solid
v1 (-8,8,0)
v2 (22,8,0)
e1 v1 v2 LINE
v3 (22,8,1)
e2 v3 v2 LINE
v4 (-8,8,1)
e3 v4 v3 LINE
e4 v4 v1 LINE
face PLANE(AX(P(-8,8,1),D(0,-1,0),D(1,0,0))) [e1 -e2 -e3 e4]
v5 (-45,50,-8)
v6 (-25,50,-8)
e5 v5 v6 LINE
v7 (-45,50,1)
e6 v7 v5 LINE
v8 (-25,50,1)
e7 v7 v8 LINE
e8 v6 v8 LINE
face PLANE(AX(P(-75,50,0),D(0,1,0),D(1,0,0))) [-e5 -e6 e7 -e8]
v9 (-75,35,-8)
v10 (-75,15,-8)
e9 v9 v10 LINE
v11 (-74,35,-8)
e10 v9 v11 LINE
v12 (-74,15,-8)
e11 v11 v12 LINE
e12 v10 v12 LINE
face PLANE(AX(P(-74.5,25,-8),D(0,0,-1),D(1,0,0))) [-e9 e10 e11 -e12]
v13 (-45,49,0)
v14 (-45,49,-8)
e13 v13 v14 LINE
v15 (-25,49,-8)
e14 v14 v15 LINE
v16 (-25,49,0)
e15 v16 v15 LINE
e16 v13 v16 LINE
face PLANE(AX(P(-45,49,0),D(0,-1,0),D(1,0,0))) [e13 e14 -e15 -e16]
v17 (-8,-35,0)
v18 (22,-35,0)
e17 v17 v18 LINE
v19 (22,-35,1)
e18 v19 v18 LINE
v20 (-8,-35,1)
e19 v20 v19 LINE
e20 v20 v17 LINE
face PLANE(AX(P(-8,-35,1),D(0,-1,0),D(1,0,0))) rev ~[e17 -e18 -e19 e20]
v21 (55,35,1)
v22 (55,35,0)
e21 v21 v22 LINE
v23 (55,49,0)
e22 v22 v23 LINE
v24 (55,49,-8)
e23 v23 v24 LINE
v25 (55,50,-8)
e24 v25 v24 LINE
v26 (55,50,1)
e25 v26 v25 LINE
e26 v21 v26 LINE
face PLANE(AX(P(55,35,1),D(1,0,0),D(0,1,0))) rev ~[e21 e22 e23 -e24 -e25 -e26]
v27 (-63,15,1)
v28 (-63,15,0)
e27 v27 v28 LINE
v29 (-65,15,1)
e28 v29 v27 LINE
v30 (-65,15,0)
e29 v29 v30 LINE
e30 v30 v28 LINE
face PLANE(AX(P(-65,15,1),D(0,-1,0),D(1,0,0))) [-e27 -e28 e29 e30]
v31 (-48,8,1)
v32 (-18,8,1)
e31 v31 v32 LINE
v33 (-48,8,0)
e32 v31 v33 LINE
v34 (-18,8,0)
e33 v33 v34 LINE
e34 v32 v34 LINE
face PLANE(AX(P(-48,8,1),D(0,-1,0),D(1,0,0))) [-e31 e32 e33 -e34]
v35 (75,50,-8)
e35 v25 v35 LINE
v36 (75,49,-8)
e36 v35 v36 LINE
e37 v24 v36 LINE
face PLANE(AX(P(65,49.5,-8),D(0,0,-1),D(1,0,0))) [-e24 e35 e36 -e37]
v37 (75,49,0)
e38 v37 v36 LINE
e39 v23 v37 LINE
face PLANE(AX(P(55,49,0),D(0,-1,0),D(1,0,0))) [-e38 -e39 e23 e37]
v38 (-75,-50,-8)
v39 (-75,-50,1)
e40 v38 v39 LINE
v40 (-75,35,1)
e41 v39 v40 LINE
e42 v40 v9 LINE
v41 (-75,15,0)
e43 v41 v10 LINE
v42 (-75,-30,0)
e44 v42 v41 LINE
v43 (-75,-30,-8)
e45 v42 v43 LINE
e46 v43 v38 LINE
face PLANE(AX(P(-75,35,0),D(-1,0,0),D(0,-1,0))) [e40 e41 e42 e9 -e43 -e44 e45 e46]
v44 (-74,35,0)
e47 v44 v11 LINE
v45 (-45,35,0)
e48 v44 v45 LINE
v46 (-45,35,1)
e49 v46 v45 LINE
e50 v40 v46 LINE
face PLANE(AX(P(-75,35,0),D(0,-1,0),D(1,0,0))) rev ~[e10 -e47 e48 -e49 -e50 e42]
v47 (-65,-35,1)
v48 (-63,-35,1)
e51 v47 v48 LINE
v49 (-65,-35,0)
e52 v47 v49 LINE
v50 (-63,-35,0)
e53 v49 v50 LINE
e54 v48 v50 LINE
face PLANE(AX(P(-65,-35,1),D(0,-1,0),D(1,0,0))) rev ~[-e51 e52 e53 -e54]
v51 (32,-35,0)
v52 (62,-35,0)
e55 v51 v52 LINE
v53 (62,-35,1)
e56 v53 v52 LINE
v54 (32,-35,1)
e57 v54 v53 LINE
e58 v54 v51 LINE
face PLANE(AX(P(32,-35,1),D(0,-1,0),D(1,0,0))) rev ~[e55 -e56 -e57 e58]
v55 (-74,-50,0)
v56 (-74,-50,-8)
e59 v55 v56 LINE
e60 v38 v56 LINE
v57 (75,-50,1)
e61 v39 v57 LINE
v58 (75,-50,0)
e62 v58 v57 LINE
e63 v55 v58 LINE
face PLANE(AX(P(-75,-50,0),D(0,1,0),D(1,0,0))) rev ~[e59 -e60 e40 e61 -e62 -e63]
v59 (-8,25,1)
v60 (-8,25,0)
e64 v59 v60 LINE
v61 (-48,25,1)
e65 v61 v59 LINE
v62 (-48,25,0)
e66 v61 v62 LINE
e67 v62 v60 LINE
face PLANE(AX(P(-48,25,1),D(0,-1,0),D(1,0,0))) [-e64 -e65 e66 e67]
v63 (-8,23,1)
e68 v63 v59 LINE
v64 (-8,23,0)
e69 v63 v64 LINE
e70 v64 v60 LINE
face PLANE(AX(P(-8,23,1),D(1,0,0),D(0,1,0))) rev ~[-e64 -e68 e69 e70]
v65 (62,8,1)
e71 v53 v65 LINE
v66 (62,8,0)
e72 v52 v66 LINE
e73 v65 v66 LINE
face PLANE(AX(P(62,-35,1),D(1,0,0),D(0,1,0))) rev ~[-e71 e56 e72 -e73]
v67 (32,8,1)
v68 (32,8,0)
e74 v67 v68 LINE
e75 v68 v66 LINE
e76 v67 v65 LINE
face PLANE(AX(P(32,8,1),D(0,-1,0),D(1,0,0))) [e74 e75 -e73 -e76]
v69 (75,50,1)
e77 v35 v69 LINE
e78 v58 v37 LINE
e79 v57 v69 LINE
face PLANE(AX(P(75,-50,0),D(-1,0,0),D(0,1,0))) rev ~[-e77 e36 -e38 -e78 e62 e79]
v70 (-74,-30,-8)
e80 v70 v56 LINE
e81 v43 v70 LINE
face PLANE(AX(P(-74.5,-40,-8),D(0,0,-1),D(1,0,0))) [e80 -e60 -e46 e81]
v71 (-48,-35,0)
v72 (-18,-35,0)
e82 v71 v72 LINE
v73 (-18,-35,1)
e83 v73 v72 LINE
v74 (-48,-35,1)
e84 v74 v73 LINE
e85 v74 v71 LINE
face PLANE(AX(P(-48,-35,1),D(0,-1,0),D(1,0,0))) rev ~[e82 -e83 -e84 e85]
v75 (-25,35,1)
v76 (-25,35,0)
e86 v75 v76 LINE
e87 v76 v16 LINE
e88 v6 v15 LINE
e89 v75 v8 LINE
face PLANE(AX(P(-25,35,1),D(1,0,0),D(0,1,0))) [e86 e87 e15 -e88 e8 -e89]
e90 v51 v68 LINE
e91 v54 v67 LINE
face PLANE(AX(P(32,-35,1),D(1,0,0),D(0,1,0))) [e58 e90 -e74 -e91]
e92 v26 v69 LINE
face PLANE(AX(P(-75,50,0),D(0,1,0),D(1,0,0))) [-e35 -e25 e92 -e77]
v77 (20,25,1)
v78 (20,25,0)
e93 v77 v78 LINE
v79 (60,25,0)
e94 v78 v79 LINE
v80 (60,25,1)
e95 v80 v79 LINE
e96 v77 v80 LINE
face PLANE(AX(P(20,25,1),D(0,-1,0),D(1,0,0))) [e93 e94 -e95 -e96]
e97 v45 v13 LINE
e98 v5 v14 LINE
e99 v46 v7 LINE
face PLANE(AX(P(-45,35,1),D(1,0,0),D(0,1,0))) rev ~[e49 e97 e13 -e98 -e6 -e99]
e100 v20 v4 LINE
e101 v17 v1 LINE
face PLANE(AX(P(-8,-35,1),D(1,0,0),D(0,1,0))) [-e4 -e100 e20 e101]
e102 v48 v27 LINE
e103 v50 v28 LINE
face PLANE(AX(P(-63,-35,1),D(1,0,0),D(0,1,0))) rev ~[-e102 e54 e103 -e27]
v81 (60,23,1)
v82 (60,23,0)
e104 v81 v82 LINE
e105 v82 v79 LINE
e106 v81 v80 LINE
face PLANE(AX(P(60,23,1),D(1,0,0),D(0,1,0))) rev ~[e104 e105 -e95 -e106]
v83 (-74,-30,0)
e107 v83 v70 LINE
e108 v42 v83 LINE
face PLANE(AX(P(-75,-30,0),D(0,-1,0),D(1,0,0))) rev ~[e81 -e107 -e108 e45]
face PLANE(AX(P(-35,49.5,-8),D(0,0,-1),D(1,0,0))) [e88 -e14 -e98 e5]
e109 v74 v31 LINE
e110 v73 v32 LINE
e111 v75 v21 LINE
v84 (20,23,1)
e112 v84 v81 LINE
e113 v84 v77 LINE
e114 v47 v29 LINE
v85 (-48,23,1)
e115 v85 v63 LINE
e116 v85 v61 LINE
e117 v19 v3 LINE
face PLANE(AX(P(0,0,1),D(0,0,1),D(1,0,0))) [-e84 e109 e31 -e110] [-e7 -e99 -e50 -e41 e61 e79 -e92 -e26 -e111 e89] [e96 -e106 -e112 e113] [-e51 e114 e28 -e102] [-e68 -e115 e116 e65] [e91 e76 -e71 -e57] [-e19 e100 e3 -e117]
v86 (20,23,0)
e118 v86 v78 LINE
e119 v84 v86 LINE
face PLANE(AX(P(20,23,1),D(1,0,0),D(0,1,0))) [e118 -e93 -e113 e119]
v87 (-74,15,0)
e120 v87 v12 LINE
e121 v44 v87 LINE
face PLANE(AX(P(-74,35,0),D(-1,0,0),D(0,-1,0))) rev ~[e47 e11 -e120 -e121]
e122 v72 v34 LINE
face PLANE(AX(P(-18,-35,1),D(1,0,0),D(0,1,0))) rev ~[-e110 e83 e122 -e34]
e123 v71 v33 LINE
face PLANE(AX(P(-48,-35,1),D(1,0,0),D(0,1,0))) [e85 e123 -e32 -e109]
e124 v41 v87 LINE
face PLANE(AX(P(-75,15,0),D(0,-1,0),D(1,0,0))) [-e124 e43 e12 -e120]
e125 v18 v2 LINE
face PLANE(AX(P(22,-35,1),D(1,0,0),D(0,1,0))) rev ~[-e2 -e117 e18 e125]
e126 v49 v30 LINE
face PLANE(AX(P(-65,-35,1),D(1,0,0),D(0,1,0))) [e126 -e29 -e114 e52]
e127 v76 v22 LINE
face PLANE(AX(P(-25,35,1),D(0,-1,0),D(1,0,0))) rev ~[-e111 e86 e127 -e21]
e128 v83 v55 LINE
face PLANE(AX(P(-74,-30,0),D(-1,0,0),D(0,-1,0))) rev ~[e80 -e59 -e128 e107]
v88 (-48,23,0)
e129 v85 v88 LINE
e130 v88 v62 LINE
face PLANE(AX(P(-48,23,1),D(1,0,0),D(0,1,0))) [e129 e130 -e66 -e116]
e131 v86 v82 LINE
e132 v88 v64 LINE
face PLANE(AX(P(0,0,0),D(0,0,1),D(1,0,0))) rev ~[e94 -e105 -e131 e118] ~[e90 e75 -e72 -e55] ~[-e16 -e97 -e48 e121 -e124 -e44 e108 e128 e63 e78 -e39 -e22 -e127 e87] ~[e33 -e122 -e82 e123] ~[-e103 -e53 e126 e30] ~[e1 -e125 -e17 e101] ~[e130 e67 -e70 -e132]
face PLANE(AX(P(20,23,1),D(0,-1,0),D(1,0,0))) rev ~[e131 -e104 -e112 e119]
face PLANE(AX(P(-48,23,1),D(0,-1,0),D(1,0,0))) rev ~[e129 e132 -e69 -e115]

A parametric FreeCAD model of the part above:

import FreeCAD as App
import Part
import Sketcher

doc = App.newDocument("Part")
body = doc.addObject("PartDesign::Body", "Body")

# Sketch on XY plane
sketch1 = doc.addObject("Sketcher::SketchObject", "Sketch")
body.addObject(sketch1)
sketch1.AttachmentSupport = (doc.XY_Plane, [""])
sketch1.MapMode = "FlatFace"
sketch1.addGeometry([
    Part.LineSegment(App.Vector(-75, 50, 0), App.Vector(-75, -50, 0)),
    Part.LineSegment(App.Vector(-75, -50, 0), App.Vector(75, -50, 0)),
    Part.LineSegment(App.Vector(75, -50, 0), App.Vector(75, 50, 0)),
    Part.LineSegment(App.Vector(75, 50, 0), App.Vector(-75, 50, 0)),
], False)
sketch1.addConstraint([
    Sketcher.Constraint("Coincident", 0, 2, 1, 1),
    Sketcher.Constraint("Coincident", 1, 2, 2, 1),
    Sketcher.Constraint("Coincident", 2, 2, 3, 1),
    Sketcher.Constraint("Coincident", 3, 2, 0, 1),
    Sketcher.Constraint("Vertical", 0),
    Sketcher.Constraint("Horizontal", 1),
    Sketcher.Constraint("Vertical", 2),
    Sketcher.Constraint("Horizontal", 3),
    Sketcher.Constraint("Symmetric", 0, 2, 2, 2, -1, 1),
    Sketcher.Constraint("DistanceX", 1, 1, 1, 2, 150.0),
    Sketcher.Constraint("DistanceY", 0, 2, 0, 1, 100.0),
])
pad1 = doc.addObject("PartDesign::Pad", "Pad")
body.addObject(pad1)
pad1.Profile = sketch1
pad1.Length = 1

# Sketch on XY plane
sketch2 = doc.addObject("Sketcher::SketchObject", "Sketch001")
body.addObject(sketch2)
sketch2.AttachmentSupport = (doc.XY_Plane, [""])
sketch2.MapMode = "FlatFace"
sketch2.AttachmentOffset = App.Placement(App.Vector(0, 0, 1), App.Rotation())
sketch2.addGeometry([
    Part.LineSegment(App.Vector(-75, 50, 0), App.Vector(-75, 35, 0)),  # 0
    Part.LineSegment(App.Vector(-75, 35, 0), App.Vector(-45, 35, 0)),  # 1
    Part.LineSegment(App.Vector(-45, 35, 0), App.Vector(-45, 50, 0)),  # 2
    Part.LineSegment(App.Vector(-45, 50, 0), App.Vector(-75, 50, 0)),  # 3
    Part.LineSegment(App.Vector(-25, 50, 0), App.Vector(-25, 35, 0)),  # 4
    Part.LineSegment(App.Vector(-25, 35, 0), App.Vector(55, 35, 0)),  # 5
    Part.LineSegment(App.Vector(55, 35, 0), App.Vector(55, 50, 0)),  # 6
    Part.LineSegment(App.Vector(55, 50, 0), App.Vector(-25, 50, 0)),  # 7
], False)
sketch2.addConstraint([
    Sketcher.Constraint("Coincident", 0, 2, 1, 1),
    Sketcher.Constraint("Coincident", 1, 2, 2, 1),
    Sketcher.Constraint("Coincident", 2, 2, 3, 1),
    Sketcher.Constraint("Coincident", 3, 2, 0, 1),
    Sketcher.Constraint("Coincident", 4, 2, 5, 1),
    Sketcher.Constraint("Coincident", 5, 2, 6, 1),
    Sketcher.Constraint("Coincident", 6, 2, 7, 1),
    Sketcher.Constraint("Coincident", 7, 2, 4, 1),
    Sketcher.Constraint("Vertical", 0),
    Sketcher.Constraint("Horizontal", 1),
    Sketcher.Constraint("Vertical", 2),
    Sketcher.Constraint("Horizontal", 3),
    Sketcher.Constraint("Vertical", 4),
    Sketcher.Constraint("Horizontal", 5),
    Sketcher.Constraint("Vertical", 6),
    Sketcher.Constraint("Horizontal", 7),
    Sketcher.Constraint("Horizontal", 1, 2, 4, 2),
    Sketcher.Constraint("Horizontal", 3, 2, 6, 2),
    Sketcher.Constraint("DistanceX", 1, 1, 1, 2, 30.0),
    Sketcher.Constraint("DistanceX", 5, 1, 5, 2, 80.0),
    Sketcher.Constraint("DistanceY", 0, 2, 0, 1, 15.0),
    Sketcher.Constraint("DistanceX", 0, 2, -1, 1, 75.0),
    Sketcher.Constraint("DistanceY", -1, 1, 0, 2, 35.0),
    Sketcher.Constraint("DistanceX", 4, 2, -1, 1, 25.0),
])
pocket1 = doc.addObject("PartDesign::Pocket", "Pocket")
body.addObject(pocket1)
pocket1.Profile = sketch2
pocket1.Type = "ThroughAll"

# Sketch on XY plane
sketch3 = doc.addObject("Sketcher::SketchObject", "Sketch002")
body.addObject(sketch3)
sketch3.AttachmentSupport = (doc.XY_Plane, [""])
sketch3.MapMode = "FlatFace"
sketch3.addGeometry([
    Part.LineSegment(App.Vector(-75, 15, 0), App.Vector(-75, 35, 0)),  # 0
    Part.LineSegment(App.Vector(-75, 35, 0), App.Vector(-74, 35, 0)),  # 1
    Part.LineSegment(App.Vector(-74, 35, 0), App.Vector(-74, 15, 0)),  # 2
    Part.LineSegment(App.Vector(-74, 15, 0), App.Vector(-75, 15, 0)),  # 3
    Part.LineSegment(App.Vector(-45, 49, 0), App.Vector(-45, 50, 0)),  # 4
    Part.LineSegment(App.Vector(-45, 50, 0), App.Vector(-25, 50, 0)),  # 5
    Part.LineSegment(App.Vector(-25, 50, 0), App.Vector(-25, 49, 0)),  # 6
    Part.LineSegment(App.Vector(-25, 49, 0), App.Vector(-45, 49, 0)),  # 7
    Part.LineSegment(App.Vector(55, 49, 0), App.Vector(55, 50, 0)),  # 8
    Part.LineSegment(App.Vector(55, 50, 0), App.Vector(75, 50, 0)),  # 9
    Part.LineSegment(App.Vector(75, 50, 0), App.Vector(75, 49, 0)),  # 10
    Part.LineSegment(App.Vector(75, 49, 0), App.Vector(55, 49, 0)),  # 11
    Part.LineSegment(App.Vector(-75, -50, 0), App.Vector(-75, -30, 0)),  # 12
    Part.LineSegment(App.Vector(-75, -30, 0), App.Vector(-74, -30, 0)),  # 13
    Part.LineSegment(App.Vector(-74, -30, 0), App.Vector(-74, -50, 0)),  # 14
    Part.LineSegment(App.Vector(-74, -50, 0), App.Vector(-75, -50, 0)),  # 15
], False)
sketch3.addConstraint([
    Sketcher.Constraint("Coincident", 0, 2, 1, 1),
    Sketcher.Constraint("Coincident", 1, 2, 2, 1),
    Sketcher.Constraint("Coincident", 2, 2, 3, 1),
    Sketcher.Constraint("Coincident", 3, 2, 0, 1),
    Sketcher.Constraint("Coincident", 4, 2, 5, 1),
    Sketcher.Constraint("Coincident", 5, 2, 6, 1),
    Sketcher.Constraint("Coincident", 6, 2, 7, 1),
    Sketcher.Constraint("Coincident", 7, 2, 4, 1),
    Sketcher.Constraint("Coincident", 8, 2, 9, 1),
    Sketcher.Constraint("Coincident", 9, 2, 10, 1),
    Sketcher.Constraint("Coincident", 10, 2, 11, 1),
    Sketcher.Constraint("Coincident", 11, 2, 8, 1),
    Sketcher.Constraint("Coincident", 12, 2, 13, 1),
    Sketcher.Constraint("Coincident", 13, 2, 14, 1),
    Sketcher.Constraint("Coincident", 14, 2, 15, 1),
    Sketcher.Constraint("Coincident", 15, 2, 12, 1),
    Sketcher.Constraint("Vertical", 0),
    Sketcher.Constraint("Horizontal", 1),
    Sketcher.Constraint("Vertical", 2),
    Sketcher.Constraint("Horizontal", 3),
    Sketcher.Constraint("Vertical", 4),
    Sketcher.Constraint("Horizontal", 5),
    Sketcher.Constraint("Vertical", 6),
    Sketcher.Constraint("Horizontal", 7),
    Sketcher.Constraint("Vertical", 8),
    Sketcher.Constraint("Horizontal", 9),
    Sketcher.Constraint("Vertical", 10),
    Sketcher.Constraint("Horizontal", 11),
    Sketcher.Constraint("Vertical", 12),
    Sketcher.Constraint("Horizontal", 13),
    Sketcher.Constraint("Vertical", 14),
    Sketcher.Constraint("Horizontal", 15),
    Sketcher.Constraint("Symmetric", 9, 2, 15, 2, -1, 1),
    Sketcher.Constraint("Horizontal", 5, 2, 8, 2),
    Sketcher.Constraint("Horizontal", 7, 2, 10, 2),
    Sketcher.Constraint("Vertical", 3, 2, 12, 2),
    Sketcher.Constraint("Vertical", 2, 2, 13, 2),
    Sketcher.Constraint("Equal", 7, 9),
    Sketcher.Constraint("Equal", 11, 0),
    Sketcher.Constraint("Equal", 15, 4),
    Sketcher.Constraint("Equal", 2, 12),
    Sketcher.Constraint("DistanceX", 1, 1, 1, 2, 1.0),
    Sketcher.Constraint("DistanceX", 5, 1, 5, 2, 20.0),
    Sketcher.Constraint("DistanceX", 0, 2, -1, 1, 75.0),
    Sketcher.Constraint("DistanceY", -1, 1, 0, 2, 35.0),
    Sketcher.Constraint("DistanceX", 4, 2, -1, 1, 45.0),
    Sketcher.Constraint("DistanceY", -1, 1, 4, 2, 50.0),
])
pad2 = doc.addObject("PartDesign::Pad", "Pad001")
body.addObject(pad2)
pad2.Profile = sketch3
pad2.Length = 8
pad2.Reversed = True

# Sketch on XY plane
sketch4 = doc.addObject("Sketcher::SketchObject", "Sketch003")
body.addObject(sketch4)
sketch4.AttachmentSupport = (doc.XY_Plane, [""])
sketch4.MapMode = "FlatFace"
sketch4.AttachmentOffset = App.Placement(App.Vector(0, 0, 1), App.Rotation())
sketch4.addGeometry([
    Part.LineSegment(App.Vector(-65, 15, 0), App.Vector(-65, -35, 0)),  # 0
    Part.LineSegment(App.Vector(-65, -35, 0), App.Vector(-63, -35, 0)),  # 1
    Part.LineSegment(App.Vector(-63, -35, 0), App.Vector(-63, 15, 0)),  # 2
    Part.LineSegment(App.Vector(-63, 15, 0), App.Vector(-65, 15, 0)),  # 3
    Part.LineSegment(App.Vector(-48, 25, 0), App.Vector(-48, 23, 0)),  # 4
    Part.LineSegment(App.Vector(-48, 23, 0), App.Vector(-8, 23, 0)),  # 5
    Part.LineSegment(App.Vector(-8, 23, 0), App.Vector(-8, 25, 0)),  # 6
    Part.LineSegment(App.Vector(-8, 25, 0), App.Vector(-48, 25, 0)),  # 7
    Part.LineSegment(App.Vector(20, 25, 0), App.Vector(20, 23, 0)),  # 8
    Part.LineSegment(App.Vector(20, 23, 0), App.Vector(60, 23, 0)),  # 9
    Part.LineSegment(App.Vector(60, 23, 0), App.Vector(60, 25, 0)),  # 10
    Part.LineSegment(App.Vector(60, 25, 0), App.Vector(20, 25, 0)),  # 11
    Part.LineSegment(App.Vector(-48, 8, 0), App.Vector(-48, -35, 0)),  # 12
    Part.LineSegment(App.Vector(-48, -35, 0), App.Vector(-18, -35, 0)),  # 13
    Part.LineSegment(App.Vector(-18, -35, 0), App.Vector(-18, 8, 0)),  # 14
    Part.LineSegment(App.Vector(-18, 8, 0), App.Vector(-48, 8, 0)),  # 15
    Part.LineSegment(App.Vector(-8, 8, 0), App.Vector(-8, -35, 0)),  # 16
    Part.LineSegment(App.Vector(-8, -35, 0), App.Vector(22, -35, 0)),  # 17
    Part.LineSegment(App.Vector(22, -35, 0), App.Vector(22, 8, 0)),  # 18
    Part.LineSegment(App.Vector(22, 8, 0), App.Vector(-8, 8, 0)),  # 19
    Part.LineSegment(App.Vector(32, 8, 0), App.Vector(32, -35, 0)),  # 20
    Part.LineSegment(App.Vector(32, -35, 0), App.Vector(62, -35, 0)),  # 21
    Part.LineSegment(App.Vector(62, -35, 0), App.Vector(62, 8, 0)),  # 22
    Part.LineSegment(App.Vector(62, 8, 0), App.Vector(32, 8, 0)),  # 23
], False)
sketch4.addConstraint([
    Sketcher.Constraint("Coincident", 0, 2, 1, 1),
    Sketcher.Constraint("Coincident", 1, 2, 2, 1),
    Sketcher.Constraint("Coincident", 2, 2, 3, 1),
    Sketcher.Constraint("Coincident", 3, 2, 0, 1),
    Sketcher.Constraint("Coincident", 4, 2, 5, 1),
    Sketcher.Constraint("Coincident", 5, 2, 6, 1),
    Sketcher.Constraint("Coincident", 6, 2, 7, 1),
    Sketcher.Constraint("Coincident", 7, 2, 4, 1),
    Sketcher.Constraint("Coincident", 8, 2, 9, 1),
    Sketcher.Constraint("Coincident", 9, 2, 10, 1),
    Sketcher.Constraint("Coincident", 10, 2, 11, 1),
    Sketcher.Constraint("Coincident", 11, 2, 8, 1),
    Sketcher.Constraint("Coincident", 12, 2, 13, 1),
    Sketcher.Constraint("Coincident", 13, 2, 14, 1),
    Sketcher.Constraint("Coincident", 14, 2, 15, 1),
    Sketcher.Constraint("Coincident", 15, 2, 12, 1),
    Sketcher.Constraint("Coincident", 16, 2, 17, 1),
    Sketcher.Constraint("Coincident", 17, 2, 18, 1),
    Sketcher.Constraint("Coincident", 18, 2, 19, 1),
    Sketcher.Constraint("Coincident", 19, 2, 16, 1),
    Sketcher.Constraint("Coincident", 20, 2, 21, 1),
    Sketcher.Constraint("Coincident", 21, 2, 22, 1),
    Sketcher.Constraint("Coincident", 22, 2, 23, 1),
    Sketcher.Constraint("Coincident", 23, 2, 20, 1),
    Sketcher.Constraint("Vertical", 0),
    Sketcher.Constraint("Horizontal", 1),
    Sketcher.Constraint("Vertical", 2),
    Sketcher.Constraint("Horizontal", 3),
    Sketcher.Constraint("Vertical", 4),
    Sketcher.Constraint("Horizontal", 5),
    Sketcher.Constraint("Vertical", 6),
    Sketcher.Constraint("Horizontal", 7),
    Sketcher.Constraint("Vertical", 8),
    Sketcher.Constraint("Horizontal", 9),
    Sketcher.Constraint("Vertical", 10),
    Sketcher.Constraint("Horizontal", 11),
    Sketcher.Constraint("Vertical", 12),
    Sketcher.Constraint("Horizontal", 13),
    Sketcher.Constraint("Vertical", 14),
    Sketcher.Constraint("Horizontal", 15),
    Sketcher.Constraint("Vertical", 16),
    Sketcher.Constraint("Horizontal", 17),
    Sketcher.Constraint("Vertical", 18),
    Sketcher.Constraint("Horizontal", 19),
    Sketcher.Constraint("Vertical", 20),
    Sketcher.Constraint("Horizontal", 21),
    Sketcher.Constraint("Vertical", 22),
    Sketcher.Constraint("Horizontal", 23),
    Sketcher.Constraint("Horizontal", 5, 2, 8, 2),
    Sketcher.Constraint("Horizontal", 7, 2, 10, 2),
    Sketcher.Constraint("Horizontal", 1, 2, 12, 2),
    Sketcher.Constraint("Horizontal", 13, 2, 16, 2),
    Sketcher.Constraint("Horizontal", 15, 2, 18, 2),
    Sketcher.Constraint("Horizontal", 17, 2, 20, 2),
    Sketcher.Constraint("Horizontal", 19, 2, 22, 2),
    Sketcher.Constraint("Vertical", 7, 2, 12, 2),
    Sketcher.Constraint("Vertical", 6, 2, 16, 2),
    Sketcher.Constraint("Equal", 7, 9),
    Sketcher.Constraint("Equal", 15, 17),
    Sketcher.Constraint("Equal", 19, 21),
    Sketcher.Constraint("Equal", 3, 4),
    Sketcher.Constraint("DistanceX", 1, 1, 1, 2, 2.0),
    Sketcher.Constraint("DistanceX", 5, 1, 5, 2, 40.0),
    Sketcher.Constraint("DistanceX", 13, 1, 13, 2, 30.0),
    Sketcher.Constraint("DistanceY", 0, 2, 0, 1, 50.0),
    Sketcher.Constraint("DistanceY", 12, 2, 12, 1, 43.0),
    Sketcher.Constraint("DistanceX", 0, 2, -1, 1, 65.0),
    Sketcher.Constraint("DistanceY", 0, 2, -1, 1, 35.0),
    Sketcher.Constraint("DistanceX", 4, 2, -1, 1, 48.0),
    Sketcher.Constraint("DistanceY", -1, 1, 4, 2, 23.0),
    Sketcher.Constraint("DistanceX", -1, 1, 8, 2, 20.0),
    Sketcher.Constraint("DistanceX", -1, 1, 20, 2, 32.0),
])
pocket2 = doc.addObject("PartDesign::Pocket", "Pocket001")
body.addObject(pocket2)
pocket2.Profile = sketch4
pocket2.Type = "ThroughAll"

doc.recompute()
